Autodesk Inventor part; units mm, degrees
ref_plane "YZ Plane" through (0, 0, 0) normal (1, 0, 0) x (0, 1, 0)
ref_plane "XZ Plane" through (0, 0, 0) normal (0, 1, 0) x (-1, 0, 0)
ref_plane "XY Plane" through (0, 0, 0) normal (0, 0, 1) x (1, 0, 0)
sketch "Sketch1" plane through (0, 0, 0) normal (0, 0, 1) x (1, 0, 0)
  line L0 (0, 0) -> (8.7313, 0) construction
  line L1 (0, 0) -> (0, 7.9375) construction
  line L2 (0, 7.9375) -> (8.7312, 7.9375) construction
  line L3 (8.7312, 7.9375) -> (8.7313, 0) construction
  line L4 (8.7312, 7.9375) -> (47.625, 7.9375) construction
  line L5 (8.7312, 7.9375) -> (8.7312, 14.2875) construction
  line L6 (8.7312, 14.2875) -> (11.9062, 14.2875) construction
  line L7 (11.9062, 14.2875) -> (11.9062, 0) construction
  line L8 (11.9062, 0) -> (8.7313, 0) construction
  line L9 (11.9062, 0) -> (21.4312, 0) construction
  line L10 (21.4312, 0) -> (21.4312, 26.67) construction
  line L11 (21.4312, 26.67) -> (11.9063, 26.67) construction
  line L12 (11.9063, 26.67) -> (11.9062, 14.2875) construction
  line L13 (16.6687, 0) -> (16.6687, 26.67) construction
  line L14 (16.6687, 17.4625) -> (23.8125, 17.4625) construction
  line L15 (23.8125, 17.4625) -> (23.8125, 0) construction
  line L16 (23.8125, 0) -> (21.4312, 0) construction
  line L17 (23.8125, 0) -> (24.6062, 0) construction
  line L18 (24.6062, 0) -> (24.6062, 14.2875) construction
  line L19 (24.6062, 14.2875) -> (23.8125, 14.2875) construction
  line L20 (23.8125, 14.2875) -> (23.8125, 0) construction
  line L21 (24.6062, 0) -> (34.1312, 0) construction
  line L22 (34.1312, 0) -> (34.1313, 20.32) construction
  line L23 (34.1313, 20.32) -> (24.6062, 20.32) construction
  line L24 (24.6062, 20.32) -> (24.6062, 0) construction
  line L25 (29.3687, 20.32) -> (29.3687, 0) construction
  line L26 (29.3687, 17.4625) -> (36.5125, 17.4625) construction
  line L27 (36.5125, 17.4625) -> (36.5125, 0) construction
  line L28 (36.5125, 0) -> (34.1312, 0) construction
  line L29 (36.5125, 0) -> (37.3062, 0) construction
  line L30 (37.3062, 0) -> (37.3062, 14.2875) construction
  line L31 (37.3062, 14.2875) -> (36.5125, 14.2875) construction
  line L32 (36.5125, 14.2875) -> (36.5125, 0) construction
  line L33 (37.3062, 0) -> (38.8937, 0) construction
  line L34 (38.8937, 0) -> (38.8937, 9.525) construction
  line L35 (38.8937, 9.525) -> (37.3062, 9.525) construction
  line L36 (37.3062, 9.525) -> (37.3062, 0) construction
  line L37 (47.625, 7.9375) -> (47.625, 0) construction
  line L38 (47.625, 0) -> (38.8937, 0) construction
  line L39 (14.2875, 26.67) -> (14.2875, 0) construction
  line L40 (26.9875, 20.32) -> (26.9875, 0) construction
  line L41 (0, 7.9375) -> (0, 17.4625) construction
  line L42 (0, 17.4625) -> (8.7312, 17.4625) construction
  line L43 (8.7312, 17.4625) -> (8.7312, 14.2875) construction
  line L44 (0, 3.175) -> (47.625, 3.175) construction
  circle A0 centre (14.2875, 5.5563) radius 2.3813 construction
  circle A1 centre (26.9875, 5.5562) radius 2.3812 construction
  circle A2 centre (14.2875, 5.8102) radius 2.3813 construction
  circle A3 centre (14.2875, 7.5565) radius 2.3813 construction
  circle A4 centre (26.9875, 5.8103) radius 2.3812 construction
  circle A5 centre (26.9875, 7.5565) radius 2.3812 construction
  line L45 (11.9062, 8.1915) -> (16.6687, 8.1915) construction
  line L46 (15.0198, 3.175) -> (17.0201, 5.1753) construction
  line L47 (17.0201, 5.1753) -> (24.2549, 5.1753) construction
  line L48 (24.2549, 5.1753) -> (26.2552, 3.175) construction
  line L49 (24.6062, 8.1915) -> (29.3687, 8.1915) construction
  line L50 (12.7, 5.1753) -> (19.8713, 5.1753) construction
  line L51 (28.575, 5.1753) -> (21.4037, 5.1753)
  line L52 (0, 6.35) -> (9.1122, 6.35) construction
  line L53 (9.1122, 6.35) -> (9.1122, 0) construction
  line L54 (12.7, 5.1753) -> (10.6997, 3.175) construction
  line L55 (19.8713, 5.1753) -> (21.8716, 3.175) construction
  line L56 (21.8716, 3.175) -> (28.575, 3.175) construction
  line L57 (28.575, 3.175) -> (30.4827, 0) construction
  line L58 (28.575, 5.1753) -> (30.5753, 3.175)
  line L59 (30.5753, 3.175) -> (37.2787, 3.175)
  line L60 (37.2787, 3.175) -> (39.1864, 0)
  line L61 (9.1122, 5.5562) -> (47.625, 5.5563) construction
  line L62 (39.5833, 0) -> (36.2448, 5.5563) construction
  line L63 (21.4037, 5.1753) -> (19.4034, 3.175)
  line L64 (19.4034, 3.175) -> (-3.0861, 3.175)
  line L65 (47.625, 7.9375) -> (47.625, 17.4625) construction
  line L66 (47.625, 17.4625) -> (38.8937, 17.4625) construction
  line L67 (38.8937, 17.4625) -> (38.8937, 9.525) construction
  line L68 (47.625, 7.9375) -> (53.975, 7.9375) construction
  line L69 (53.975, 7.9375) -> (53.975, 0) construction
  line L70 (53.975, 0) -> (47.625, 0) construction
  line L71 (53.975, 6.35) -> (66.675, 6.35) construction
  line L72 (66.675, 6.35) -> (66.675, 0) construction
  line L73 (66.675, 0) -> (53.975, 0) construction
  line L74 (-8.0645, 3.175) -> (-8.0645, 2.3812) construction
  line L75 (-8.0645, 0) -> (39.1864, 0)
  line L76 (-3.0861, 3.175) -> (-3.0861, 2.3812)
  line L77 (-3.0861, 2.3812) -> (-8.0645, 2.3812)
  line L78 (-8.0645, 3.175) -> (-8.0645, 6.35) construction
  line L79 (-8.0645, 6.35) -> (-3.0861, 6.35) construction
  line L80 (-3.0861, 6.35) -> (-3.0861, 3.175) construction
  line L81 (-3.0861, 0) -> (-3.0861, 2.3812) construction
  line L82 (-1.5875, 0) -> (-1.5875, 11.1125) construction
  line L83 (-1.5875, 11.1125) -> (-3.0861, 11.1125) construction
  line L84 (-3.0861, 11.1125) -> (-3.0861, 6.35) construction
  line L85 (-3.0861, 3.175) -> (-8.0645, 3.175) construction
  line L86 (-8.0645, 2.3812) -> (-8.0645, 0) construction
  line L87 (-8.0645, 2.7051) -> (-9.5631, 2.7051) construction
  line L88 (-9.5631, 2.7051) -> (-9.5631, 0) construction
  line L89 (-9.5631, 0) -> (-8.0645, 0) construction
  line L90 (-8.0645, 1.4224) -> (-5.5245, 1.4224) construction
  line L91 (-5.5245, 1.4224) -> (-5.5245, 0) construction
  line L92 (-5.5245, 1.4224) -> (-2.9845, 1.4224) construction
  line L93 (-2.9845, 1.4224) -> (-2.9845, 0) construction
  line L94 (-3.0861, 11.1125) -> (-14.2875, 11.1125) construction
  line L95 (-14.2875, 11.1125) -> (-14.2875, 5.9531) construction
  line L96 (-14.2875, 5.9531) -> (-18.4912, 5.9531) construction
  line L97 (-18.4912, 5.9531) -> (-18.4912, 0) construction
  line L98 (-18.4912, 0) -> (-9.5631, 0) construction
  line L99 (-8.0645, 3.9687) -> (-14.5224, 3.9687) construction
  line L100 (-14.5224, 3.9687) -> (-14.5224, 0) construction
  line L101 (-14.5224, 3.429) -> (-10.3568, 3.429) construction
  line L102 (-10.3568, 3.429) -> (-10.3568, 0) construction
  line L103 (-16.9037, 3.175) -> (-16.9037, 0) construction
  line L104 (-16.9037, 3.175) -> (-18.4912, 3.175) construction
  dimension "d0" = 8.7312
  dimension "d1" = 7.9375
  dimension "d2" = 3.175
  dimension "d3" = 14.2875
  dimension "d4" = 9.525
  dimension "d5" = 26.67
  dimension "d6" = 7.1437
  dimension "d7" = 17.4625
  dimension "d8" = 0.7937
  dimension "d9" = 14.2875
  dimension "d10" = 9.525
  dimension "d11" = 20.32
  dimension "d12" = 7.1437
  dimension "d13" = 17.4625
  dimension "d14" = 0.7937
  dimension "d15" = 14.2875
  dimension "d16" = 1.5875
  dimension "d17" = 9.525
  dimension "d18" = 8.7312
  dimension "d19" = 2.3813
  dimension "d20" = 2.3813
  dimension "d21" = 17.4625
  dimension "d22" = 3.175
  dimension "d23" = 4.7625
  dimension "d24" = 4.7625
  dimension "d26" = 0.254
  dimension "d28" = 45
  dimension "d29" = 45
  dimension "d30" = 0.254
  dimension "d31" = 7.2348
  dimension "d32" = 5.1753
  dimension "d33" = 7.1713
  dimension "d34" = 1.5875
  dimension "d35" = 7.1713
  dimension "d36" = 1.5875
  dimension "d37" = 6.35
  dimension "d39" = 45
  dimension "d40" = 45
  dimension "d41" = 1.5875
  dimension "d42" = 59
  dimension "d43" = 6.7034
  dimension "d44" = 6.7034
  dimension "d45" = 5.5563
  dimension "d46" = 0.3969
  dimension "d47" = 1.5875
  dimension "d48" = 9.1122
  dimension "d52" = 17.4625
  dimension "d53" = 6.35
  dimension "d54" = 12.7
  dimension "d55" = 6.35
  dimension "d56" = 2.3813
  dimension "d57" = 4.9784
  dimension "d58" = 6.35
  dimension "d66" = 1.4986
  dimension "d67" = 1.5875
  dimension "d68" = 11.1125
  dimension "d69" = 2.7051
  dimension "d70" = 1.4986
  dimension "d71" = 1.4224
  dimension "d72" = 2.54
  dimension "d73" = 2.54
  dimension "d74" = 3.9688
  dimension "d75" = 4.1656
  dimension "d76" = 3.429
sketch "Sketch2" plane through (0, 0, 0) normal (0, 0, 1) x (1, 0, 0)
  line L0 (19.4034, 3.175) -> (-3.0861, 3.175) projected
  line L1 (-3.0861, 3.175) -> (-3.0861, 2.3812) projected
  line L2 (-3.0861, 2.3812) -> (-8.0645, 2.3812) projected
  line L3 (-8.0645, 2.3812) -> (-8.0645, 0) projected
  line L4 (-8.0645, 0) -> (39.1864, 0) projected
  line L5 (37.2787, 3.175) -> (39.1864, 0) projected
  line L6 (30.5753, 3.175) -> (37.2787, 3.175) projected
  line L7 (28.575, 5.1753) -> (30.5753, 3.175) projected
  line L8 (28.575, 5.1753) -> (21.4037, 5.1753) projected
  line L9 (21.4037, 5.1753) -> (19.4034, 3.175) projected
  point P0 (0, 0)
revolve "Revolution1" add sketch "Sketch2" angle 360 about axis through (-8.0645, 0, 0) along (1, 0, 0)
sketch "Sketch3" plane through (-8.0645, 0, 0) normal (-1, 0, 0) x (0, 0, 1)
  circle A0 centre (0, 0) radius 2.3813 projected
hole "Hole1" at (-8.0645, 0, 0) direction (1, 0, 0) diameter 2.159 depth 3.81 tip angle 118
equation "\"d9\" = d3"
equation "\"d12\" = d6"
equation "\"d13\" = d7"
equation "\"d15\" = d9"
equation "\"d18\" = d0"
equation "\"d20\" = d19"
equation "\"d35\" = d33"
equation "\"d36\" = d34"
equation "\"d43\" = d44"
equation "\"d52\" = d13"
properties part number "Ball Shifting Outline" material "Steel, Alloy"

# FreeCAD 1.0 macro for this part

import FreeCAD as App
import Part
import Sketcher
Q = App.Units.Quantity

doc = App.newDocument("Part")
body = doc.addObject("PartDesign::Body", "Body")

# Sketch on XY plane
sketch1 = doc.addObject("Sketcher::SketchObject", "Sketch")
body.addObject(sketch1)
sketch1.AttachmentSupport = (doc.XY_Plane, [""])
sketch1.MapMode = "FlatFace"
sketch1.addGeometry(Part.LineSegment(App.Vector(21.4, 5.2, 0), App.Vector(19.4, 3.2, 0)), False)
sketch1.addGeometry(Part.LineSegment(App.Vector(19.4, 3.2, 0), App.Vector(-3.1, 3.2, 0)), False)
sketch1.addGeometry(Part.LineSegment(App.Vector(-3.1, 3.2, 0), App.Vector(-3.1, 2.4, 0)), False)
sketch1.addGeometry(Part.LineSegment(App.Vector(-3.1, 2.4, 0), App.Vector(-8.1, 2.4, 0)), False)
sketch1.addGeometry(Part.LineSegment(App.Vector(-8.1, 2.4, 0), App.Vector(-8.1, 0, 0)), False)
sketch1.addGeometry(Part.LineSegment(App.Vector(-8.1, 0, 0), App.Vector(39.2, 0, 0)), False)
sketch1.addGeometry(Part.LineSegment(App.Vector(39.2, 0, 0), App.Vector(37.3, 3.2, 0)), False)
sketch1.addGeometry(Part.LineSegment(App.Vector(37.3, 3.2, 0), App.Vector(30.6, 3.2, 0)), False)
sketch1.addGeometry(Part.LineSegment(App.Vector(30.6, 3.2, 0), App.Vector(28.6, 5.2, 0)), False)
sketch1.addGeometry(Part.LineSegment(App.Vector(28.6, 5.2, 0), App.Vector(21.4, 5.2, 0)), False)
sketch1.addConstraint(Sketcher.Constraint("Coincident", 0, 2, 1, 1))
sketch1.addConstraint(Sketcher.Constraint("Coincident", 1, 2, 2, 1))
sketch1.addConstraint(Sketcher.Constraint("Coincident", 2, 2, 3, 1))
sketch1.addConstraint(Sketcher.Constraint("Coincident", 3, 2, 4, 1))
sketch1.addConstraint(Sketcher.Constraint("Coincident", 4, 2, 5, 1))
sketch1.addConstraint(Sketcher.Constraint("Coincident", 5, 2, 6, 1))
sketch1.addConstraint(Sketcher.Constraint("Coincident", 6, 2, 7, 1))
sketch1.addConstraint(Sketcher.Constraint("Coincident", 7, 2, 8, 1))
sketch1.addConstraint(Sketcher.Constraint("Coincident", 8, 2, 9, 1))
sketch1.addConstraint(Sketcher.Constraint("Coincident", 9, 2, 0, 1))
sketch1.addConstraint(Sketcher.Constraint("Horizontal", 1))
sketch1.addConstraint(Sketcher.Constraint("Vertical", 2))
sketch1.addConstraint(Sketcher.Constraint("Horizontal", 3))
sketch1.addConstraint(Sketcher.Constraint("Vertical", 4))
sketch1.addConstraint(Sketcher.Constraint("Horizontal", 5))
sketch1.addConstraint(Sketcher.Constraint("Horizontal", 7))
sketch1.addConstraint(Sketcher.Constraint("Horizontal", 9))
sketch1.addConstraint(Sketcher.Constraint("PointOnObject", 4, 2, -1))
sketch1.addConstraint(Sketcher.Constraint("Perpendicular", 0, 8))
sketch1.addConstraint(Sketcher.Constraint("Horizontal", 1, 2, 6, 2))
sketch1.addConstraint(Sketcher.Constraint("Equal", 0, 8))
sketch1.addConstraint(Sketcher.Constraint("Angle", 6, Q("120.9996 deg")))
sketch1.addConstraint(Sketcher.Constraint("DistanceX", 3, 2, 3, 1, Q("0.196 in")))
sketch1.addConstraint(Sketcher.Constraint("DistanceY", 2, 2, 2, 1, Q("0.031252 in")))
sketch1.addConstraint(Sketcher.Constraint("DistanceY", 4, 2, 4, 1, Q("0.093748 in")))
sketch1.addConstraint(Sketcher.Constraint("DistanceX", -1, 1, 8, 2, Q("1.125 in")))
sketch1.addConstraint(Sketcher.Constraint("DistanceX", 9, 2, 6, 2, Q("0.625 in")))
sketch1.addConstraint(Sketcher.Constraint("DistanceX", 1, 2, 1, 1, Q("22.4895 mm")))
sketch1.addConstraint(Sketcher.Constraint("DistanceX", 5, 1, 5, 2, Q("47.251 mm")))
sketch1.addConstraint(Sketcher.Constraint("DistanceX", 7, 2, 7, 1, Q("6.7034 mm")))
revolution = doc.addObject("PartDesign::Revolution", "Revolution")
body.addObject(revolution)
revolution.Profile = sketch1
revolution.ReferenceAxis = (sketch1, ["H_Axis"])
revolution.Angle = 360

# Sketch on YZ plane
sketch2 = doc.addObject("Sketcher::SketchObject", "Sketch001")
body.addObject(sketch2)
sketch2.AttachmentSupport = (doc.YZ_Plane, [""])
sketch2.MapMode = "FlatFace"
sketch2.AttachmentOffset = App.Placement(App.Vector(0, 0, -0.3175 * 25.4), App.Rotation())
sketch2.addGeometry(Part.Circle(App.Vector(0, 0, 0), App.Vector(0, 0, 1), 1.1), False)
sketch2.addConstraint(Sketcher.Constraint("Coincident", 0, 3, -1, 1))
sketch2.addConstraint(Sketcher.Constraint("Diameter", 0, Q("0.085 in")))
doc.recompute()
hole = doc.addObject("PartDesign::Hole", "Hole")
body.addObject(hole)
hole.Profile = sketch2
hole.ThreadType = "None"
hole.Diameter = Q("0.085 in")
hole.DepthType = "Dimension"
hole.Depth = Q("0.15 in")
hole.DrillPoint = "Angled"
hole.DrillPointAngle = 118
hole.Reversed = True

doc.recompute()
